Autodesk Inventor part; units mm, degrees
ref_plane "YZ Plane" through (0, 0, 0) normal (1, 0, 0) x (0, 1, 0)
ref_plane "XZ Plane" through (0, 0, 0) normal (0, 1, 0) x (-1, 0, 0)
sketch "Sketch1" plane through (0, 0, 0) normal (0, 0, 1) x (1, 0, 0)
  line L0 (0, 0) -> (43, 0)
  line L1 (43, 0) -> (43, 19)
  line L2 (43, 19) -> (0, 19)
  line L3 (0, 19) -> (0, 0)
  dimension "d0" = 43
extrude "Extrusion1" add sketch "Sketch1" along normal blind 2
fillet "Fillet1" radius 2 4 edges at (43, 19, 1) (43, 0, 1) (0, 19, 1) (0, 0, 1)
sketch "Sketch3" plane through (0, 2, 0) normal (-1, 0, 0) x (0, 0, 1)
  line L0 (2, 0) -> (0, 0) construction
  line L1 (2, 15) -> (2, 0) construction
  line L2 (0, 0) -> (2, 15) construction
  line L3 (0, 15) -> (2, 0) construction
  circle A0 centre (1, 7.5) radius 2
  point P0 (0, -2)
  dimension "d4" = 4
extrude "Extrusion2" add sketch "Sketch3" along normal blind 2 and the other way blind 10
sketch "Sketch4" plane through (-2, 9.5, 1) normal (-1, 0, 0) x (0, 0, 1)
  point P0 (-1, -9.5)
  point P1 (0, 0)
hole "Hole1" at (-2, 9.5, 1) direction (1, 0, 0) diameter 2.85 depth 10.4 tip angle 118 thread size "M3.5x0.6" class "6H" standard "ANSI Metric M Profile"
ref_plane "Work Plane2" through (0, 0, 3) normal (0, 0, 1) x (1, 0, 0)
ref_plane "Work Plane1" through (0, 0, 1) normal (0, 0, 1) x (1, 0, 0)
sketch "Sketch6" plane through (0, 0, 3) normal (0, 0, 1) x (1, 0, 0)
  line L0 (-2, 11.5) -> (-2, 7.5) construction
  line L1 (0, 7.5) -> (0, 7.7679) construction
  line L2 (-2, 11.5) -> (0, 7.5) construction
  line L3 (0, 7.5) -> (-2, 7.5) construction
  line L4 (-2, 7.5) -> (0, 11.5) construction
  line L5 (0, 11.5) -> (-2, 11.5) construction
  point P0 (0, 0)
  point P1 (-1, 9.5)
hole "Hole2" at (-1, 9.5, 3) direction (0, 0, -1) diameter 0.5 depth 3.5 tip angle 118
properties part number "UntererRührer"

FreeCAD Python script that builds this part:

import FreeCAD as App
import Part
import Sketcher
Q = App.Units.Quantity


def edges_at(feature, points):
    """Names of the edges that pass closest to the given points."""
    edges = feature.Shape.Edges
    near = lambda p: min(range(len(edges)), key=lambda i: edges[i].distToShape(Part.Vertex(*p))[0])
    return sorted({f"Edge{near(p) + 1}" for p in points})


def add_polygon(sketch, points):
    """Adds a closed chain of lines whose ends are joined by coincident constraints."""
    first, n = sketch.GeometryCount, len(points)
    for a, b in zip(points, points[1:] + points[:1]):
        sketch.addGeometry(Part.LineSegment(App.Vector(*a, 0), App.Vector(*b, 0)), False)
    for i in range(n):
        sketch.addConstraint(Sketcher.Constraint("Coincident", first + i, 2, first + (i + 1) % n, 1))

doc = App.newDocument("Part")
body = doc.addObject("PartDesign::Body", "Body")

# Sketch on XY plane
sketch1 = body.newObject("Sketcher::SketchObject", "Sketch")
sketch1.AttachmentSupport = (doc.getObject("XY_Plane"), [""])
sketch1.MapMode = "FlatFace"
add_polygon(sketch1, [(0, 19), (0, 0), (43, 0), (43, 19)])  # lines 0-3
sketch1.addConstraint([
    Sketcher.Constraint("Vertical", 0),
    Sketcher.Constraint("Horizontal", 1),
    Sketcher.Constraint("Vertical", 2),
    Sketcher.Constraint("Horizontal", 3),
    Sketcher.Constraint("Coincident", 0, 2, -1, 1),
    Sketcher.Constraint("DistanceX", 1, 1, 1, 2, Q("43 mm")),
    Sketcher.Constraint("DistanceY", 0, 2, 0, 1, Q("19 mm")),
])
pad1 = body.newObject("PartDesign::Pad", "Pad")
pad1.Profile = sketch1
pad1.Length = 2
doc.recompute()

fillet = body.newObject("PartDesign::Fillet", "Fillet")
fillet.Base = (pad1, edges_at(pad1, [
    (43, 19, 1),
    (43, 0, 1),
    (0, 19, 1),
    (0, 0, 1),
]))
fillet.Radius = 2

# Sketch on YZ plane
sketch2 = body.newObject("Sketcher::SketchObject", "Sketch001")
sketch2.AttachmentSupport = (doc.getObject("YZ_Plane"), [""])
sketch2.MapMode = "FlatFace"
sketch2.addGeometry(Part.Circle(App.Vector(9.5, 1, 0), App.Vector(0, 0, 1), 2), False)
sketch2.addConstraint([
    Sketcher.Constraint("Diameter", 0, Q("4 mm")),
    Sketcher.Constraint("DistanceY", -1, 1, 0, 3, Q("1 mm")),
    Sketcher.Constraint("DistanceX", -1, 1, 0, 3, Q("9.5 mm")),
])
pad2 = body.newObject("PartDesign::Pad", "Pad001")
pad2.Profile = sketch2
pad2.Type = "TwoLengths"
pad2.Length = 2
pad2.Length2 = 10
pad2.Reversed = True

# Sketch on YZ plane
sketch3 = body.newObject("Sketcher::SketchObject", "Sketch002")
sketch3.AttachmentSupport = (doc.getObject("YZ_Plane"), [""])
sketch3.MapMode = "FlatFace"
sketch3.AttachmentOffset = App.Placement(App.Vector(0, 0, -2), App.Rotation())
sketch3.addGeometry(Part.Circle(App.Vector(9.5, 1, 0), App.Vector(0, 0, 1), 1.4), False)
sketch3.addConstraint([
    Sketcher.Constraint("Diameter", 0, Q("2.85 mm")),
    Sketcher.Constraint("DistanceY", -1, 1, 0, 3, Q("1 mm")),
    Sketcher.Constraint("DistanceX", -1, 1, 0, 3, Q("9.5 mm")),
])
doc.recompute()
hole = body.newObject("PartDesign::Hole", "Hole")
hole.Profile = sketch3
hole.ThreadType = "None"
hole.Diameter = 2.85
hole.DepthType = "Dimension"
hole.Depth = 10.4
hole.DrillPoint = "Angled"
hole.DrillPointAngle = 118
hole.Reversed = True

# Sketch on XY plane
sketch4 = body.newObject("Sketcher::SketchObject", "Sketch003")
sketch4.AttachmentSupport = (doc.getObject("XY_Plane"), [""])
sketch4.MapMode = "FlatFace"
sketch4.AttachmentOffset = App.Placement(App.Vector(0, 0, 3), App.Rotation())
sketch4.addGeometry(Part.Circle(App.Vector(-1, 9.5, 0), App.Vector(0, 0, 1), 0.25), False)
sketch4.addConstraint([
    Sketcher.Constraint("Diameter", 0, Q("0.5 mm")),
    Sketcher.Constraint("DistanceX", 0, 3, -1, 1, Q("1 mm")),
    Sketcher.Constraint("DistanceY", -1, 1, 0, 3, Q("9.5 mm")),
])
doc.recompute()
hole2 = body.newObject("PartDesign::Hole", "Hole001")
hole2.Profile = sketch4
hole2.ThreadType = "None"
hole2.Diameter = 0.5
hole2.DepthType = "Dimension"
hole2.Depth = 3.5
hole2.DrillPoint = "Angled"
hole2.DrillPointAngle = 118

doc.recompute()
